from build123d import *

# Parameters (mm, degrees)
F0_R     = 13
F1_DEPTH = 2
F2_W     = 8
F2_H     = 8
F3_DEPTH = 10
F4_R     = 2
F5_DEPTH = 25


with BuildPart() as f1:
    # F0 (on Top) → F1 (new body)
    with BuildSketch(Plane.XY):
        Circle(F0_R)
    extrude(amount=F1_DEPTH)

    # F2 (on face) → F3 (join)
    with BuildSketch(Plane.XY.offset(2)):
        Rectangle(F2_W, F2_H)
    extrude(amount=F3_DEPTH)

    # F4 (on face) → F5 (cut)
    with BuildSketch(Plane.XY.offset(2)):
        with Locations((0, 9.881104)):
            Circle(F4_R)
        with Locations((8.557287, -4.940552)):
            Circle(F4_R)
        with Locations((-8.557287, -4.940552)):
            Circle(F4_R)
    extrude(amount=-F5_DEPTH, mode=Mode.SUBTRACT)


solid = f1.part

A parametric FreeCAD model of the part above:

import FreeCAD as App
import Part
import Sketcher

V = App.Vector
Q = App.Units.Quantity


def add_polygon(sketch, points):
    """Adds a closed chain of lines whose ends are joined by coincident constraints."""
    first, n = sketch.GeometryCount, len(points)
    for a, b in zip(points, points[1:] + points[:1]):
        sketch.addGeometry(Part.LineSegment(App.Vector(*a, 0), App.Vector(*b, 0)), False)
    for i in range(n):
        sketch.addConstraint(Sketcher.Constraint("Coincident", first + i, 2, first + (i + 1) % n, 1))

doc = App.newDocument("Part")
body = doc.addObject("PartDesign::Body", "Body")

sketch1 = body.newObject("Sketcher::SketchObject", "Sketch")
sketch1.AttachmentSupport = (doc.getObject("XY_Plane"), [""])
sketch1.MapMode = "FlatFace"
sketch1.addGeometry(Part.Circle(V(0, 0, 0), V(0, 0, 1), 13), False)
sketch1.addConstraint([
    Sketcher.Constraint("Coincident", 0, 3, -1, 1),
    Sketcher.Constraint("Diameter", 0, Q("26 mm")),
])
pad1 = body.newObject("PartDesign::Pad", "Pad")
pad1.Profile = sketch1
pad1.Length = 2

sketch2 = body.newObject("Sketcher::SketchObject", "Sketch001")
sketch2.AttachmentSupport = (doc.getObject("XY_Plane"), [""])
sketch2.MapMode = "FlatFace"
sketch2.AttachmentOffset = App.Placement(V(0, 0, 2), App.Rotation())
add_polygon(sketch2, [(-4, 4), (-4, -4), (4, -4), (4, 4)])
sketch2.addConstraint([
    Sketcher.Constraint("Vertical", 0),
    Sketcher.Constraint("Horizontal", 1),
    Sketcher.Constraint("Vertical", 2),
    Sketcher.Constraint("Horizontal", 3),
    Sketcher.Constraint("Symmetric", 0, 2, 2, 2, -1, 1),
    Sketcher.Constraint("Equal", 3, 0),
    Sketcher.Constraint("DistanceX", 1, 1, 1, 2, Q("8 mm")),
])
pad2 = body.newObject("PartDesign::Pad", "Pad001")
pad2.Profile = sketch2
pad2.Length = 10

sketch3 = body.newObject("Sketcher::SketchObject", "Sketch002")
sketch3.AttachmentSupport = (doc.getObject("XY_Plane"), [""])
sketch3.MapMode = "FlatFace"
sketch3.AttachmentOffset = App.Placement(V(0, 0, 2), App.Rotation())
sketch3.addGeometry([
    Part.Circle(V(0, 9.9, 0), V(0, 0, 1), 2),
    Part.Circle(V(8.6, -4.9, 0), V(0, 0, 1), 2),
    Part.Circle(V(-8.6, -4.9, 0), V(0, 0, 1), 2),
], False)
sketch3.addConstraint([
    Sketcher.Constraint("Equal", 0, 1),
    Sketcher.Constraint("Equal", 1, 2),
    Sketcher.Constraint("Symmetric", 1, 3, 2, 3, -2),
    Sketcher.Constraint("PointOnObject", 0, 3, -2),
    Sketcher.Constraint("Diameter", 0, Q("4 mm")),
    Sketcher.Constraint("DistanceY", -1, 1, 0, 3, Q("9.881104 mm")),
    Sketcher.Constraint("DistanceX", -1, 1, 1, 3, Q("8.557287 mm")),
    Sketcher.Constraint("DistanceY", 1, 3, -1, 1, Q("4.940552 mm")),
])
pocket1 = body.newObject("PartDesign::Pocket", "Pocket")
pocket1.Profile = sketch3
pocket1.Length = 25

doc.recompute()
